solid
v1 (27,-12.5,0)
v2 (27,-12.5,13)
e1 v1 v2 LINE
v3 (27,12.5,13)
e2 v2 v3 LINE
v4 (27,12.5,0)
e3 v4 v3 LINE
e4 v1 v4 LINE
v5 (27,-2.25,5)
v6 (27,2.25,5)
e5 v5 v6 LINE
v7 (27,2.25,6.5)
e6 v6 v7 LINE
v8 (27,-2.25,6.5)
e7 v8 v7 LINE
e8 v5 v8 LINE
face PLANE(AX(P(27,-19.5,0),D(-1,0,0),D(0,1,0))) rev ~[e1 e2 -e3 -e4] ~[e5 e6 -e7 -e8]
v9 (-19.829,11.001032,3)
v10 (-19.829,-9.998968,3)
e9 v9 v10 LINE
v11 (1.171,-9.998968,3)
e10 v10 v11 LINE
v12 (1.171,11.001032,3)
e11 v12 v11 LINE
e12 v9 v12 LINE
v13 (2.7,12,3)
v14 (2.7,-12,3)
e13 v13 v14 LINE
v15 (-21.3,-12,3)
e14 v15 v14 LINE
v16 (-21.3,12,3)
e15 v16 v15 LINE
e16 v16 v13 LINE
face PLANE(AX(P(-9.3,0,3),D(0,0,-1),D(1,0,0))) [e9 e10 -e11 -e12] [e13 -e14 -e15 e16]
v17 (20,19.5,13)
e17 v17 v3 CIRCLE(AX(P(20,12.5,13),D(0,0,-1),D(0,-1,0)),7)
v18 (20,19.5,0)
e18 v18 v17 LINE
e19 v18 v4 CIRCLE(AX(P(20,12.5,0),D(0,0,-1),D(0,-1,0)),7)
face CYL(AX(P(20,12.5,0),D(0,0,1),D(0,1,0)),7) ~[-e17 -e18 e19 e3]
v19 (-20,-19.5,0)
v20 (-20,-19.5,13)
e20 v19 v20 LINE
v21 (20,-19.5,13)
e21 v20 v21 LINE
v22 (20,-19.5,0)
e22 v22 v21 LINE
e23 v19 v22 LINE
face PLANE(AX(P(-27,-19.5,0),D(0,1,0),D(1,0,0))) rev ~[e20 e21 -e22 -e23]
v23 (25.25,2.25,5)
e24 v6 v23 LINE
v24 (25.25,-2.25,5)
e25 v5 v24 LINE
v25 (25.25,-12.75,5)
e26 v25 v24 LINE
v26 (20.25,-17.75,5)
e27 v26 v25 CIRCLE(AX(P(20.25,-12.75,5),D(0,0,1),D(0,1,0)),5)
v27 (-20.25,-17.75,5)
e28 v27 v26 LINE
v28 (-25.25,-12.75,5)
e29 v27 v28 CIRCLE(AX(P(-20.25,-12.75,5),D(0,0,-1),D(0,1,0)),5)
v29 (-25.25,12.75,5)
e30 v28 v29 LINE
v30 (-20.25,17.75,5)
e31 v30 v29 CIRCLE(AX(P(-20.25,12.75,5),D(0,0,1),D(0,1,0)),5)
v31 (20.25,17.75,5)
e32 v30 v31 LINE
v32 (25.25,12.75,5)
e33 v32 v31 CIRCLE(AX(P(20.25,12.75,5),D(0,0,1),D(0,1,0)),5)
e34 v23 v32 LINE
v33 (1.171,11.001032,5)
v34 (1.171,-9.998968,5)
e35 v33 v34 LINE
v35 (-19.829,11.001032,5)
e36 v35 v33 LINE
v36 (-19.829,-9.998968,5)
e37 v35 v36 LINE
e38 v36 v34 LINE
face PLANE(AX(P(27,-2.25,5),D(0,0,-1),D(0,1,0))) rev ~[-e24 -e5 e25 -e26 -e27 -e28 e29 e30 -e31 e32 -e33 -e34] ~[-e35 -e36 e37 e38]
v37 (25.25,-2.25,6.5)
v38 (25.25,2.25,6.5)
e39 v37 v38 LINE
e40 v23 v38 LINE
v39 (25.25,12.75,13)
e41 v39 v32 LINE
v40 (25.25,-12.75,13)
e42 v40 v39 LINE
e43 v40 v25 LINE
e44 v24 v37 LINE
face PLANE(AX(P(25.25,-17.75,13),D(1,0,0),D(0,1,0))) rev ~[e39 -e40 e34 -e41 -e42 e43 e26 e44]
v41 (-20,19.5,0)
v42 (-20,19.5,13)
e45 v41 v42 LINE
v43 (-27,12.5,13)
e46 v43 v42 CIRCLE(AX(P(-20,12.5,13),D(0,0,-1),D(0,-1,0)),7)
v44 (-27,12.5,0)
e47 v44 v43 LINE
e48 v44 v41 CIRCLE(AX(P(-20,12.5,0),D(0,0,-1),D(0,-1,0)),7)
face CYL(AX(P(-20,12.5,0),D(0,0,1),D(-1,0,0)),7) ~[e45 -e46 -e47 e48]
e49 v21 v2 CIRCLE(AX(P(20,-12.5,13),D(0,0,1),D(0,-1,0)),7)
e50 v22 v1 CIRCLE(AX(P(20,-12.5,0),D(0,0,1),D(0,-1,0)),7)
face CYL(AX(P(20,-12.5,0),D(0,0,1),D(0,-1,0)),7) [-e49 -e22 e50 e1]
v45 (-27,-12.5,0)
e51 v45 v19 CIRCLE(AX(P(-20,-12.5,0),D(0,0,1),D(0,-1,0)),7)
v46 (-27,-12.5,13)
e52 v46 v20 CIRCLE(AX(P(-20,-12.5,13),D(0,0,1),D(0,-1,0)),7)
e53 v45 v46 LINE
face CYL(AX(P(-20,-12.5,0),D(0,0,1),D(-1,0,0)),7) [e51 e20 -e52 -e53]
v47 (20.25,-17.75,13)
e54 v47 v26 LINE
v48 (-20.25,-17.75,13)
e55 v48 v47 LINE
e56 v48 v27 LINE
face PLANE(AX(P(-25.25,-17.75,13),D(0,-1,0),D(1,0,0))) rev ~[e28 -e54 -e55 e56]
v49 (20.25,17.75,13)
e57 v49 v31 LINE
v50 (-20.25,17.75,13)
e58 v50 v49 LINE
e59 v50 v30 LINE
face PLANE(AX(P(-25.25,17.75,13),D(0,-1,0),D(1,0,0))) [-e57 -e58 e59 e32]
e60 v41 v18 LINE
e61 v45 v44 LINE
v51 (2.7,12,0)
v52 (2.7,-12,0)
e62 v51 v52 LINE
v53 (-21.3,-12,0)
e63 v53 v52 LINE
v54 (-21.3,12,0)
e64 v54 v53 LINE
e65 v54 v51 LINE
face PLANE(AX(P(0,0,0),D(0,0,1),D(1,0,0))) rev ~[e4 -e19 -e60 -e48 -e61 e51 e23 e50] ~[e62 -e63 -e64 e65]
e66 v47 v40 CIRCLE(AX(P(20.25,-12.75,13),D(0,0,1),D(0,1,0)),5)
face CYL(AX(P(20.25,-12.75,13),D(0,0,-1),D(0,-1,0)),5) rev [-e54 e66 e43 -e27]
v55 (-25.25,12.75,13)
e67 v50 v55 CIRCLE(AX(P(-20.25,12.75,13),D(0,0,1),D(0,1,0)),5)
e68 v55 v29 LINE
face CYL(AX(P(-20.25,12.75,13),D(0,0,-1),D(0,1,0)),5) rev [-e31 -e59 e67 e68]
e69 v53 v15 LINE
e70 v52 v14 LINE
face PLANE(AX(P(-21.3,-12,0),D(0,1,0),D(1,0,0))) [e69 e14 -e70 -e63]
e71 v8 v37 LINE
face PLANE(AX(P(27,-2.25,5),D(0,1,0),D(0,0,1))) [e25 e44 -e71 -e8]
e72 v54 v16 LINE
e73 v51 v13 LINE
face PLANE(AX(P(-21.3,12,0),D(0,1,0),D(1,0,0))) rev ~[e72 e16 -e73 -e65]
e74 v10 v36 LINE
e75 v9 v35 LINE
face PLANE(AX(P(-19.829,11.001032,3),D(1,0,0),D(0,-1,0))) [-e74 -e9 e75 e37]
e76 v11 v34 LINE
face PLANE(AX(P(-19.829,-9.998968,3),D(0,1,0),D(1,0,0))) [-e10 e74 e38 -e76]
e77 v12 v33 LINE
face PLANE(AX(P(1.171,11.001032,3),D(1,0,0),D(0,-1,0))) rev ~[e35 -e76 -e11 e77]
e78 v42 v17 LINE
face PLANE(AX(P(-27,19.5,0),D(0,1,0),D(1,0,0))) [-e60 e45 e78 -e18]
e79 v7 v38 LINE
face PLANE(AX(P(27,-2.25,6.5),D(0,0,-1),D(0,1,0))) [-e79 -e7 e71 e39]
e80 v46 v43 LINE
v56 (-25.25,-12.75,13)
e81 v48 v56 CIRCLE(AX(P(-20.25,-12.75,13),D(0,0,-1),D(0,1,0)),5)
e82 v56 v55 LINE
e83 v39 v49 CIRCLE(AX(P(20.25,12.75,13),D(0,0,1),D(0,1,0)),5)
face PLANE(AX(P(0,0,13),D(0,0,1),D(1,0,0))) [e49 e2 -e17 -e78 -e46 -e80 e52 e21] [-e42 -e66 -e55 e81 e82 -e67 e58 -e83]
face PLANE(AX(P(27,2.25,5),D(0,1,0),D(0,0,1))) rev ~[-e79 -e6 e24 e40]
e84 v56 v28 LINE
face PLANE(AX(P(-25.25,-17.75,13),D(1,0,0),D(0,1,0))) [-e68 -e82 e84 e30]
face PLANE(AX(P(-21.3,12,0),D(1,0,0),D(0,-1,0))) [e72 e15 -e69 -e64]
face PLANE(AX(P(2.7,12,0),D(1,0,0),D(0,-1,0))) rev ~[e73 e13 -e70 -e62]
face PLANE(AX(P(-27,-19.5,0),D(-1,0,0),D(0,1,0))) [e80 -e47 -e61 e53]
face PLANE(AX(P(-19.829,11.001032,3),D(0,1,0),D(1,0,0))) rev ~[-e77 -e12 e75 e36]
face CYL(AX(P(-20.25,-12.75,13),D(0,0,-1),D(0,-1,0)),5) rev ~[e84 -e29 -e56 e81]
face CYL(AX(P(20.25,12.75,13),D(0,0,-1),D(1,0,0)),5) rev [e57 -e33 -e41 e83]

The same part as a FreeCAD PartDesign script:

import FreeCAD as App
import Part
import Sketcher

V = App.Vector


def edges_at(feature, points):
    """Names of the edges that pass closest to the given points."""
    edges = feature.Shape.Edges
    near = lambda p: min(range(len(edges)), key=lambda i: edges[i].distToShape(Part.Vertex(*p))[0])
    return sorted({f"Edge{near(p) + 1}" for p in points})

doc = App.newDocument("Part")
body = doc.addObject("PartDesign::Body", "Body")

sketch1 = body.newObject("Sketcher::SketchObject", "Sketch")
sketch1.AttachmentSupport = (doc.getObject("XY_Plane"), [""])
sketch1.MapMode = "FlatFace"
sketch1.addGeometry([
    Part.LineSegment(V(-27, 20, 0), V(-27, -20, 0)),
    Part.LineSegment(V(-27, -20, 0), V(27, -20, 0)),
    Part.LineSegment(V(27, -20, 0), V(27, 20, 0)),
    Part.LineSegment(V(27, 20, 0), V(-27, 20, 0)),
], False)
sketch1.addConstraint([
    Sketcher.Constraint("Coincident", 0, 2, 1, 1),
    Sketcher.Constraint("Coincident", 1, 2, 2, 1),
    Sketcher.Constraint("Coincident", 2, 2, 3, 1),
    Sketcher.Constraint("Coincident", 3, 2, 0, 1),
    Sketcher.Constraint("Vertical", 0),
    Sketcher.Constraint("Horizontal", 1),
    Sketcher.Constraint("Vertical", 2),
    Sketcher.Constraint("Horizontal", 3),
    Sketcher.Constraint("Symmetric", 0, 2, 2, 2, -1, 1),
    Sketcher.Constraint("DistanceX", 1, 1, 1, 2, 54.0),
    Sketcher.Constraint("DistanceY", 0, 2, 0, 1, 39.0),
])
pad1 = body.newObject("PartDesign::Pad", "Pad")
pad1.Profile = sketch1
pad1.Length = 13

sketch2 = body.newObject("Sketcher::SketchObject", "Sketch001")
sketch2.AttachmentSupport = (doc.getObject("XY_Plane"), [""])
sketch2.MapMode = "FlatFace"
sketch2.AttachmentOffset = App.Placement(V(0, 0, 13), App.Rotation())
sketch2.addGeometry([
    Part.LineSegment(V(-25, 18, 0), V(-25, -18, 0)),
    Part.LineSegment(V(-25, -18, 0), V(25, -18, 0)),
    Part.LineSegment(V(25, -18, 0), V(25, 18, 0)),
    Part.LineSegment(V(25, 18, 0), V(-25, 18, 0)),
], False)
sketch2.addConstraint([
    Sketcher.Constraint("Coincident", 0, 2, 1, 1),
    Sketcher.Constraint("Coincident", 1, 2, 2, 1),
    Sketcher.Constraint("Coincident", 2, 2, 3, 1),
    Sketcher.Constraint("Coincident", 3, 2, 0, 1),
    Sketcher.Constraint("Vertical", 0),
    Sketcher.Constraint("Horizontal", 1),
    Sketcher.Constraint("Vertical", 2),
    Sketcher.Constraint("Horizontal", 3),
    Sketcher.Constraint("Symmetric", 0, 2, 2, 2, -1, 1),
    Sketcher.Constraint("DistanceX", 1, 1, 1, 2, 50.5),
    Sketcher.Constraint("DistanceY", 0, 2, 0, 1, 35.5),
])
pocket1 = body.newObject("PartDesign::Pocket", "Pocket")
pocket1.Profile = sketch2
pocket1.Length = 8

sketch3 = body.newObject("Sketcher::SketchObject", "Sketch002")
sketch3.AttachmentSupport = (doc.getObject("XY_Plane"), [""])
sketch3.MapMode = "FlatFace"
sketch3.addGeometry([
    Part.LineSegment(V(-21, -12, 0), V(-21, 12, 0)),
    Part.LineSegment(V(-21, 12, 0), V(3, 12, 0)),
    Part.LineSegment(V(3, 12, 0), V(3, -12, 0)),
    Part.LineSegment(V(3, -12, 0), V(-21, -12, 0)),
], False)
sketch3.addConstraint([
    Sketcher.Constraint("Coincident", 0, 2, 1, 1),
    Sketcher.Constraint("Coincident", 1, 2, 2, 1),
    Sketcher.Constraint("Coincident", 2, 2, 3, 1),
    Sketcher.Constraint("Coincident", 3, 2, 0, 1),
    Sketcher.Constraint("Vertical", 0),
    Sketcher.Constraint("Horizontal", 1),
    Sketcher.Constraint("Vertical", 2),
    Sketcher.Constraint("Horizontal", 3),
    Sketcher.Constraint("Equal", 3, 0),
    Sketcher.Constraint("DistanceX", 1, 1, 1, 2, 24.0),
    Sketcher.Constraint("DistanceY", -1, 1, 0, 2, 12.0),
    Sketcher.Constraint("DistanceX", 0, 2, -1, 1, 21.3),
])
pocket2 = body.newObject("PartDesign::Pocket", "Pocket001")
pocket2.Profile = sketch3
pocket2.Length = 3
pocket2.Reversed = True

sketch4 = body.newObject("Sketcher::SketchObject", "Sketch003")
sketch4.AttachmentSupport = (doc.getObject("XY_Plane"), [""])
sketch4.MapMode = "FlatFace"
sketch4.AttachmentOffset = App.Placement(V(0, 0, 3), App.Rotation())
sketch4.addGeometry([
    Part.LineSegment(V(-20, -10, 0), V(-20, 11, 0)),
    Part.LineSegment(V(-20, 11, 0), V(1, 11, 0)),
    Part.LineSegment(V(1, 11, 0), V(1, -10, 0)),
    Part.LineSegment(V(1, -10, 0), V(-20, -10, 0)),
], False)
sketch4.addConstraint([
    Sketcher.Constraint("Coincident", 0, 2, 1, 1),
    Sketcher.Constraint("Coincident", 1, 2, 2, 1),
    Sketcher.Constraint("Coincident", 2, 2, 3, 1),
    Sketcher.Constraint("Coincident", 3, 2, 0, 1),
    Sketcher.Constraint("Vertical", 0),
    Sketcher.Constraint("Horizontal", 1),
    Sketcher.Constraint("Vertical", 2),
    Sketcher.Constraint("Horizontal", 3),
    Sketcher.Constraint("Equal", 3, 0),
    Sketcher.Constraint("DistanceX", 1, 1, 1, 2, 21.0),
    Sketcher.Constraint("DistanceX", 0, 2, -1, 1, 19.829),
    Sketcher.Constraint("DistanceY", -1, 1, 0, 2, 11.001032),
])
pocket3 = body.newObject("PartDesign::Pocket", "Pocket002")
pocket3.Profile = sketch4
pocket3.Length = 2
pocket3.Reversed = True
doc.recompute()

fillet = body.newObject("PartDesign::Fillet", "Fillet")
fillet.Base = (pocket3, edges_at(pocket3, [
    (-25.25, 17.75, 9),
    (25.25, 17.75, 9),
    (-25.25, -17.75, 9),
    (25.25, -17.75, 9),
]))
fillet.Radius = 5
doc.recompute()

fillet2 = body.newObject("PartDesign::Fillet", "Fillet001")
fillet2.Base = (fillet, edges_at(fillet, [
    (-27, 19.5, 6.5),
    (-27, -19.5, 6.5),
    (27, 19.5, 6.5),
    (27, -19.5, 6.5),
]))
fillet2.Radius = 7

sketch5 = body.newObject("Sketcher::SketchObject", "Sketch004")
sketch5.AttachmentSupport = (doc.getObject("YZ_Plane"), [""])
sketch5.MapMode = "FlatFace"
sketch5.AttachmentOffset = App.Placement(V(0, 0, 27), App.Rotation())
sketch5.addGeometry([
    Part.LineSegment(V(-2.2, 6.5, 0), V(-2.2, 5, 0)),
    Part.LineSegment(V(-2.2, 5, 0), V(2.2, 5, 0)),
    Part.LineSegment(V(2.2, 5, 0), V(2.2, 6.5, 0)),
    Part.LineSegment(V(2.2, 6.5, 0), V(-2.2, 6.5, 0)),
], False)
sketch5.addConstraint([
    Sketcher.Constraint("Coincident", 0, 2, 1, 1),
    Sketcher.Constraint("Coincident", 1, 2, 2, 1),
    Sketcher.Constraint("Coincident", 2, 2, 3, 1),
    Sketcher.Constraint("Coincident", 3, 2, 0, 1),
    Sketcher.Constraint("Vertical", 0),
    Sketcher.Constraint("Horizontal", 1),
    Sketcher.Constraint("Vertical", 2),
    Sketcher.Constraint("Horizontal", 3),
    Sketcher.Constraint("DistanceX", 1, 1, 1, 2, 4.5),
    Sketcher.Constraint("DistanceY", 0, 2, 0, 1, 1.5),
    Sketcher.Constraint("DistanceY", -1, 1, 0, 2, 5.0),
    Sketcher.Constraint("DistanceX", 0, 2, -1, 1, 2.25),
])
pocket4 = body.newObject("PartDesign::Pocket", "Pocket003")
pocket4.Profile = sketch5
pocket4.Length = 1.75

doc.recompute()
